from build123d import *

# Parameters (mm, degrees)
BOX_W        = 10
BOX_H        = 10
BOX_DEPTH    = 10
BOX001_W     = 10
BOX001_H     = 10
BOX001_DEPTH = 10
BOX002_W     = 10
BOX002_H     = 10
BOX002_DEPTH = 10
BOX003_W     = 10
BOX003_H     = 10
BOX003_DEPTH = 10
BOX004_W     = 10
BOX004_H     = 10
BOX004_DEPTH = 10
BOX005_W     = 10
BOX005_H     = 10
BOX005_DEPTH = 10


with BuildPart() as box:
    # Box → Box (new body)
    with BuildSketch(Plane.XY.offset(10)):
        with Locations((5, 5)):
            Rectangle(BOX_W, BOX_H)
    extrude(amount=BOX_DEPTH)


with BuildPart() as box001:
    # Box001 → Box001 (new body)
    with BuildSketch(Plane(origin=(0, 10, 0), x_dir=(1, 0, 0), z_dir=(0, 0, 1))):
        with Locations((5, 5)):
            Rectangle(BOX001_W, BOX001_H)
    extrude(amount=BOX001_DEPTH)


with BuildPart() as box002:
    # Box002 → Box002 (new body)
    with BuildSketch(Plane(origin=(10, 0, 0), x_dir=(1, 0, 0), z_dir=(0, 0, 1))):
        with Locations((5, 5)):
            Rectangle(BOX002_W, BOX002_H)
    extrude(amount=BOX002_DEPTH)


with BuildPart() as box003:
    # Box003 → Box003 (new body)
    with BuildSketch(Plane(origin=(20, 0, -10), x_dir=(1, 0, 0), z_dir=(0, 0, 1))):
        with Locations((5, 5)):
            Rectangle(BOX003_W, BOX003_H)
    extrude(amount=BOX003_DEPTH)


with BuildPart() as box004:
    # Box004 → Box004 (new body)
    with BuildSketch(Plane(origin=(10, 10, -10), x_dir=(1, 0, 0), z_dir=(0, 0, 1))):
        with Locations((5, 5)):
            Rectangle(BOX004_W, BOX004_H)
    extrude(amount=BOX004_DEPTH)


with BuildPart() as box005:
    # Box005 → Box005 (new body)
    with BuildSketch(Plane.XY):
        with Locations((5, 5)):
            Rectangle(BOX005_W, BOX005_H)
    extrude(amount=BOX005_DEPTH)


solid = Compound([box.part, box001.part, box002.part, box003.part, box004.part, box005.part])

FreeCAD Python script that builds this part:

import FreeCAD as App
import Part
import Sketcher
Q = App.Units.Quantity


def add_polygon(sketch, points):
    """Adds a closed chain of lines whose ends are joined by coincident constraints."""
    first, n = sketch.GeometryCount, len(points)
    for a, b in zip(points, points[1:] + points[:1]):
        sketch.addGeometry(Part.LineSegment(App.Vector(*a, 0), App.Vector(*b, 0)), False)
    for i in range(n):
        sketch.addConstraint(Sketcher.Constraint("Coincident", first + i, 2, first + (i + 1) % n, 1))

doc = App.newDocument("Part")
params = doc.addObject("Spreadsheet::Sheet", "Params")
for row, (alias, value) in enumerate([
    ("sketch1_width", "10 mm"),
    ("pad1_length", "10 mm"),
    ("sketch2_width", "10 mm"),
    ("pad2_length", "10 mm"),
    ("sketch3_width", "10 mm"),
    ("pad3_length", "10 mm"),
    ("sketch4_width", "10 mm"),
    ("pad4_length", "10 mm"),
    ("sketch5_width", "10 mm"),
    ("pad5_length", "10 mm"),
    ("sketch6_width", "10 mm"),
    ("pad6_length", "10 mm"),
], start=1):
    params.set(f"A{row}", alias)
    params.set(f"B{row}", "=" + value)
    params.setAlias(f"B{row}", alias)

body = doc.addObject("PartDesign::Body", "Body")

sketch1 = doc.addObject("Sketcher::SketchObject", "Sketch")
body.addObject(sketch1)
sketch1.AttachmentSupport = (doc.XY_Plane, [""])
sketch1.MapMode = "FlatFace"
sketch1.AttachmentOffset = App.Placement(App.Vector(0, 0, 10), App.Rotation())
add_polygon(sketch1, [(0, 10), (0, 0), (10, 0), (10, 10)])
sketch1.addConstraint([
    Sketcher.Constraint("Vertical", 0),
    Sketcher.Constraint("Horizontal", 1),
    Sketcher.Constraint("Vertical", 2),
    Sketcher.Constraint("Horizontal", 3),
    Sketcher.Constraint("Coincident", 0, 2, -1, 1),
    Sketcher.Constraint("Equal", 3, 0),
    Sketcher.Constraint("DistanceX", 1, 1, 1, 2, Q("10 mm")),
])
sketch1.setExpression("Constraints[10]", "Params.sketch1_width")
pad1 = doc.addObject("PartDesign::Pad", "Pad")
body.addObject(pad1)
pad1.Profile = sketch1
pad1.setExpression("Length", "Params.pad1_length")
body2 = doc.addObject("PartDesign::Body", "Body001")

sketch2 = doc.addObject("Sketcher::SketchObject", "Sketch001")
body2.addObject(sketch2)
sketch2.AttachmentSupport = (doc.getObject("XY_Plane001"), [""])
sketch2.MapMode = "FlatFace"
add_polygon(sketch2, [(0, 20), (0, 10), (10, 10), (10, 20)])
sketch2.addConstraint([
    Sketcher.Constraint("Vertical", 0),
    Sketcher.Constraint("Horizontal", 1),
    Sketcher.Constraint("Vertical", 2),
    Sketcher.Constraint("Horizontal", 3),
    Sketcher.Constraint("PointOnObject", 0, 2, -2),
    Sketcher.Constraint("Equal", 3, 0),
    Sketcher.Constraint("DistanceX", 1, 1, 1, 2, Q("10 mm")),
    Sketcher.Constraint("DistanceY", -1, 1, 0, 2, Q("10 mm")),
])
sketch2.setExpression("Constraints[10]", "Params.sketch2_width")
pad2 = doc.addObject("PartDesign::Pad", "Pad001")
body2.addObject(pad2)
pad2.Profile = sketch2
pad2.setExpression("Length", "Params.pad2_length")
body3 = doc.addObject("PartDesign::Body", "Body002")

sketch3 = doc.addObject("Sketcher::SketchObject", "Sketch002")
body3.addObject(sketch3)
sketch3.AttachmentSupport = (doc.getObject("XY_Plane002"), [""])
sketch3.MapMode = "FlatFace"
add_polygon(sketch3, [(10, 10), (10, 0), (20, 0), (20, 10)])
sketch3.addConstraint([
    Sketcher.Constraint("Vertical", 0),
    Sketcher.Constraint("Horizontal", 1),
    Sketcher.Constraint("Vertical", 2),
    Sketcher.Constraint("Horizontal", 3),
    Sketcher.Constraint("PointOnObject", 0, 2, -1),
    Sketcher.Constraint("Equal", 3, 0),
    Sketcher.Constraint("DistanceX", 1, 1, 1, 2, Q("10 mm")),
    Sketcher.Constraint("DistanceX", -1, 1, 0, 2, Q("10 mm")),
])
sketch3.setExpression("Constraints[10]", "Params.sketch3_width")
pad3 = doc.addObject("PartDesign::Pad", "Pad002")
body3.addObject(pad3)
pad3.Profile = sketch3
pad3.setExpression("Length", "Params.pad3_length")
body4 = doc.addObject("PartDesign::Body", "Body003")

sketch4 = doc.addObject("Sketcher::SketchObject", "Sketch003")
body4.addObject(sketch4)
sketch4.AttachmentSupport = (doc.getObject("XY_Plane003"), [""])
sketch4.MapMode = "FlatFace"
sketch4.AttachmentOffset = App.Placement(App.Vector(0, 0, -10), App.Rotation())
add_polygon(sketch4, [(20, 10), (20, 0), (30, 0), (30, 10)])
sketch4.addConstraint([
    Sketcher.Constraint("Vertical", 0),
    Sketcher.Constraint("Horizontal", 1),
    Sketcher.Constraint("Vertical", 2),
    Sketcher.Constraint("Horizontal", 3),
    Sketcher.Constraint("PointOnObject", 0, 2, -1),
    Sketcher.Constraint("Equal", 3, 0),
    Sketcher.Constraint("DistanceX", 1, 1, 1, 2, Q("10 mm")),
    Sketcher.Constraint("DistanceX", -1, 1, 0, 2, Q("20 mm")),
])
sketch4.setExpression("Constraints[10]", "Params.sketch4_width")
pad4 = doc.addObject("PartDesign::Pad", "Pad003")
body4.addObject(pad4)
pad4.Profile = sketch4
pad4.setExpression("Length", "Params.pad4_length")
body5 = doc.addObject("PartDesign::Body", "Body004")

sketch5 = doc.addObject("Sketcher::SketchObject", "Sketch004")
body5.addObject(sketch5)
sketch5.AttachmentSupport = (doc.getObject("XY_Plane004"), [""])
sketch5.MapMode = "FlatFace"
sketch5.AttachmentOffset = App.Placement(App.Vector(0, 0, -10), App.Rotation())
add_polygon(sketch5, [(10, 20), (10, 10), (20, 10), (20, 20)])
sketch5.addConstraint([
    Sketcher.Constraint("Vertical", 0),
    Sketcher.Constraint("Horizontal", 1),
    Sketcher.Constraint("Vertical", 2),
    Sketcher.Constraint("Horizontal", 3),
    Sketcher.Constraint("Equal", 3, 0),
    Sketcher.Constraint("DistanceX", 1, 1, 1, 2, Q("10 mm")),
    Sketcher.Constraint("DistanceX", -1, 1, 0, 2, Q("10 mm")),
    Sketcher.Constraint("DistanceY", -1, 1, 0, 2, Q("10 mm")),
])
sketch5.setExpression("Constraints[9]", "Params.sketch5_width")
pad5 = doc.addObject("PartDesign::Pad", "Pad004")
body5.addObject(pad5)
pad5.Profile = sketch5
pad5.setExpression("Length", "Params.pad5_length")
body6 = doc.addObject("PartDesign::Body", "Body005")

sketch6 = doc.addObject("Sketcher::SketchObject", "Sketch005")
body6.addObject(sketch6)
sketch6.AttachmentSupport = (doc.getObject("XY_Plane005"), [""])
sketch6.MapMode = "FlatFace"
add_polygon(sketch6, [(0, 10), (0, 0), (10, 0), (10, 10)])
sketch6.addConstraint([
    Sketcher.Constraint("Vertical", 0),
    Sketcher.Constraint("Horizontal", 1),
    Sketcher.Constraint("Vertical", 2),
    Sketcher.Constraint("Horizontal", 3),
    Sketcher.Constraint("Coincident", 0, 2, -1, 1),
    Sketcher.Constraint("Equal", 3, 0),
    Sketcher.Constraint("DistanceX", 1, 1, 1, 2, Q("10 mm")),
])
sketch6.setExpression("Constraints[10]", "Params.sketch6_width")
pad6 = doc.addObject("PartDesign::Pad", "Pad005")
body6.addObject(pad6)
pad6.Profile = sketch6
pad6.setExpression("Length", "Params.pad6_length")

doc.recompute()
